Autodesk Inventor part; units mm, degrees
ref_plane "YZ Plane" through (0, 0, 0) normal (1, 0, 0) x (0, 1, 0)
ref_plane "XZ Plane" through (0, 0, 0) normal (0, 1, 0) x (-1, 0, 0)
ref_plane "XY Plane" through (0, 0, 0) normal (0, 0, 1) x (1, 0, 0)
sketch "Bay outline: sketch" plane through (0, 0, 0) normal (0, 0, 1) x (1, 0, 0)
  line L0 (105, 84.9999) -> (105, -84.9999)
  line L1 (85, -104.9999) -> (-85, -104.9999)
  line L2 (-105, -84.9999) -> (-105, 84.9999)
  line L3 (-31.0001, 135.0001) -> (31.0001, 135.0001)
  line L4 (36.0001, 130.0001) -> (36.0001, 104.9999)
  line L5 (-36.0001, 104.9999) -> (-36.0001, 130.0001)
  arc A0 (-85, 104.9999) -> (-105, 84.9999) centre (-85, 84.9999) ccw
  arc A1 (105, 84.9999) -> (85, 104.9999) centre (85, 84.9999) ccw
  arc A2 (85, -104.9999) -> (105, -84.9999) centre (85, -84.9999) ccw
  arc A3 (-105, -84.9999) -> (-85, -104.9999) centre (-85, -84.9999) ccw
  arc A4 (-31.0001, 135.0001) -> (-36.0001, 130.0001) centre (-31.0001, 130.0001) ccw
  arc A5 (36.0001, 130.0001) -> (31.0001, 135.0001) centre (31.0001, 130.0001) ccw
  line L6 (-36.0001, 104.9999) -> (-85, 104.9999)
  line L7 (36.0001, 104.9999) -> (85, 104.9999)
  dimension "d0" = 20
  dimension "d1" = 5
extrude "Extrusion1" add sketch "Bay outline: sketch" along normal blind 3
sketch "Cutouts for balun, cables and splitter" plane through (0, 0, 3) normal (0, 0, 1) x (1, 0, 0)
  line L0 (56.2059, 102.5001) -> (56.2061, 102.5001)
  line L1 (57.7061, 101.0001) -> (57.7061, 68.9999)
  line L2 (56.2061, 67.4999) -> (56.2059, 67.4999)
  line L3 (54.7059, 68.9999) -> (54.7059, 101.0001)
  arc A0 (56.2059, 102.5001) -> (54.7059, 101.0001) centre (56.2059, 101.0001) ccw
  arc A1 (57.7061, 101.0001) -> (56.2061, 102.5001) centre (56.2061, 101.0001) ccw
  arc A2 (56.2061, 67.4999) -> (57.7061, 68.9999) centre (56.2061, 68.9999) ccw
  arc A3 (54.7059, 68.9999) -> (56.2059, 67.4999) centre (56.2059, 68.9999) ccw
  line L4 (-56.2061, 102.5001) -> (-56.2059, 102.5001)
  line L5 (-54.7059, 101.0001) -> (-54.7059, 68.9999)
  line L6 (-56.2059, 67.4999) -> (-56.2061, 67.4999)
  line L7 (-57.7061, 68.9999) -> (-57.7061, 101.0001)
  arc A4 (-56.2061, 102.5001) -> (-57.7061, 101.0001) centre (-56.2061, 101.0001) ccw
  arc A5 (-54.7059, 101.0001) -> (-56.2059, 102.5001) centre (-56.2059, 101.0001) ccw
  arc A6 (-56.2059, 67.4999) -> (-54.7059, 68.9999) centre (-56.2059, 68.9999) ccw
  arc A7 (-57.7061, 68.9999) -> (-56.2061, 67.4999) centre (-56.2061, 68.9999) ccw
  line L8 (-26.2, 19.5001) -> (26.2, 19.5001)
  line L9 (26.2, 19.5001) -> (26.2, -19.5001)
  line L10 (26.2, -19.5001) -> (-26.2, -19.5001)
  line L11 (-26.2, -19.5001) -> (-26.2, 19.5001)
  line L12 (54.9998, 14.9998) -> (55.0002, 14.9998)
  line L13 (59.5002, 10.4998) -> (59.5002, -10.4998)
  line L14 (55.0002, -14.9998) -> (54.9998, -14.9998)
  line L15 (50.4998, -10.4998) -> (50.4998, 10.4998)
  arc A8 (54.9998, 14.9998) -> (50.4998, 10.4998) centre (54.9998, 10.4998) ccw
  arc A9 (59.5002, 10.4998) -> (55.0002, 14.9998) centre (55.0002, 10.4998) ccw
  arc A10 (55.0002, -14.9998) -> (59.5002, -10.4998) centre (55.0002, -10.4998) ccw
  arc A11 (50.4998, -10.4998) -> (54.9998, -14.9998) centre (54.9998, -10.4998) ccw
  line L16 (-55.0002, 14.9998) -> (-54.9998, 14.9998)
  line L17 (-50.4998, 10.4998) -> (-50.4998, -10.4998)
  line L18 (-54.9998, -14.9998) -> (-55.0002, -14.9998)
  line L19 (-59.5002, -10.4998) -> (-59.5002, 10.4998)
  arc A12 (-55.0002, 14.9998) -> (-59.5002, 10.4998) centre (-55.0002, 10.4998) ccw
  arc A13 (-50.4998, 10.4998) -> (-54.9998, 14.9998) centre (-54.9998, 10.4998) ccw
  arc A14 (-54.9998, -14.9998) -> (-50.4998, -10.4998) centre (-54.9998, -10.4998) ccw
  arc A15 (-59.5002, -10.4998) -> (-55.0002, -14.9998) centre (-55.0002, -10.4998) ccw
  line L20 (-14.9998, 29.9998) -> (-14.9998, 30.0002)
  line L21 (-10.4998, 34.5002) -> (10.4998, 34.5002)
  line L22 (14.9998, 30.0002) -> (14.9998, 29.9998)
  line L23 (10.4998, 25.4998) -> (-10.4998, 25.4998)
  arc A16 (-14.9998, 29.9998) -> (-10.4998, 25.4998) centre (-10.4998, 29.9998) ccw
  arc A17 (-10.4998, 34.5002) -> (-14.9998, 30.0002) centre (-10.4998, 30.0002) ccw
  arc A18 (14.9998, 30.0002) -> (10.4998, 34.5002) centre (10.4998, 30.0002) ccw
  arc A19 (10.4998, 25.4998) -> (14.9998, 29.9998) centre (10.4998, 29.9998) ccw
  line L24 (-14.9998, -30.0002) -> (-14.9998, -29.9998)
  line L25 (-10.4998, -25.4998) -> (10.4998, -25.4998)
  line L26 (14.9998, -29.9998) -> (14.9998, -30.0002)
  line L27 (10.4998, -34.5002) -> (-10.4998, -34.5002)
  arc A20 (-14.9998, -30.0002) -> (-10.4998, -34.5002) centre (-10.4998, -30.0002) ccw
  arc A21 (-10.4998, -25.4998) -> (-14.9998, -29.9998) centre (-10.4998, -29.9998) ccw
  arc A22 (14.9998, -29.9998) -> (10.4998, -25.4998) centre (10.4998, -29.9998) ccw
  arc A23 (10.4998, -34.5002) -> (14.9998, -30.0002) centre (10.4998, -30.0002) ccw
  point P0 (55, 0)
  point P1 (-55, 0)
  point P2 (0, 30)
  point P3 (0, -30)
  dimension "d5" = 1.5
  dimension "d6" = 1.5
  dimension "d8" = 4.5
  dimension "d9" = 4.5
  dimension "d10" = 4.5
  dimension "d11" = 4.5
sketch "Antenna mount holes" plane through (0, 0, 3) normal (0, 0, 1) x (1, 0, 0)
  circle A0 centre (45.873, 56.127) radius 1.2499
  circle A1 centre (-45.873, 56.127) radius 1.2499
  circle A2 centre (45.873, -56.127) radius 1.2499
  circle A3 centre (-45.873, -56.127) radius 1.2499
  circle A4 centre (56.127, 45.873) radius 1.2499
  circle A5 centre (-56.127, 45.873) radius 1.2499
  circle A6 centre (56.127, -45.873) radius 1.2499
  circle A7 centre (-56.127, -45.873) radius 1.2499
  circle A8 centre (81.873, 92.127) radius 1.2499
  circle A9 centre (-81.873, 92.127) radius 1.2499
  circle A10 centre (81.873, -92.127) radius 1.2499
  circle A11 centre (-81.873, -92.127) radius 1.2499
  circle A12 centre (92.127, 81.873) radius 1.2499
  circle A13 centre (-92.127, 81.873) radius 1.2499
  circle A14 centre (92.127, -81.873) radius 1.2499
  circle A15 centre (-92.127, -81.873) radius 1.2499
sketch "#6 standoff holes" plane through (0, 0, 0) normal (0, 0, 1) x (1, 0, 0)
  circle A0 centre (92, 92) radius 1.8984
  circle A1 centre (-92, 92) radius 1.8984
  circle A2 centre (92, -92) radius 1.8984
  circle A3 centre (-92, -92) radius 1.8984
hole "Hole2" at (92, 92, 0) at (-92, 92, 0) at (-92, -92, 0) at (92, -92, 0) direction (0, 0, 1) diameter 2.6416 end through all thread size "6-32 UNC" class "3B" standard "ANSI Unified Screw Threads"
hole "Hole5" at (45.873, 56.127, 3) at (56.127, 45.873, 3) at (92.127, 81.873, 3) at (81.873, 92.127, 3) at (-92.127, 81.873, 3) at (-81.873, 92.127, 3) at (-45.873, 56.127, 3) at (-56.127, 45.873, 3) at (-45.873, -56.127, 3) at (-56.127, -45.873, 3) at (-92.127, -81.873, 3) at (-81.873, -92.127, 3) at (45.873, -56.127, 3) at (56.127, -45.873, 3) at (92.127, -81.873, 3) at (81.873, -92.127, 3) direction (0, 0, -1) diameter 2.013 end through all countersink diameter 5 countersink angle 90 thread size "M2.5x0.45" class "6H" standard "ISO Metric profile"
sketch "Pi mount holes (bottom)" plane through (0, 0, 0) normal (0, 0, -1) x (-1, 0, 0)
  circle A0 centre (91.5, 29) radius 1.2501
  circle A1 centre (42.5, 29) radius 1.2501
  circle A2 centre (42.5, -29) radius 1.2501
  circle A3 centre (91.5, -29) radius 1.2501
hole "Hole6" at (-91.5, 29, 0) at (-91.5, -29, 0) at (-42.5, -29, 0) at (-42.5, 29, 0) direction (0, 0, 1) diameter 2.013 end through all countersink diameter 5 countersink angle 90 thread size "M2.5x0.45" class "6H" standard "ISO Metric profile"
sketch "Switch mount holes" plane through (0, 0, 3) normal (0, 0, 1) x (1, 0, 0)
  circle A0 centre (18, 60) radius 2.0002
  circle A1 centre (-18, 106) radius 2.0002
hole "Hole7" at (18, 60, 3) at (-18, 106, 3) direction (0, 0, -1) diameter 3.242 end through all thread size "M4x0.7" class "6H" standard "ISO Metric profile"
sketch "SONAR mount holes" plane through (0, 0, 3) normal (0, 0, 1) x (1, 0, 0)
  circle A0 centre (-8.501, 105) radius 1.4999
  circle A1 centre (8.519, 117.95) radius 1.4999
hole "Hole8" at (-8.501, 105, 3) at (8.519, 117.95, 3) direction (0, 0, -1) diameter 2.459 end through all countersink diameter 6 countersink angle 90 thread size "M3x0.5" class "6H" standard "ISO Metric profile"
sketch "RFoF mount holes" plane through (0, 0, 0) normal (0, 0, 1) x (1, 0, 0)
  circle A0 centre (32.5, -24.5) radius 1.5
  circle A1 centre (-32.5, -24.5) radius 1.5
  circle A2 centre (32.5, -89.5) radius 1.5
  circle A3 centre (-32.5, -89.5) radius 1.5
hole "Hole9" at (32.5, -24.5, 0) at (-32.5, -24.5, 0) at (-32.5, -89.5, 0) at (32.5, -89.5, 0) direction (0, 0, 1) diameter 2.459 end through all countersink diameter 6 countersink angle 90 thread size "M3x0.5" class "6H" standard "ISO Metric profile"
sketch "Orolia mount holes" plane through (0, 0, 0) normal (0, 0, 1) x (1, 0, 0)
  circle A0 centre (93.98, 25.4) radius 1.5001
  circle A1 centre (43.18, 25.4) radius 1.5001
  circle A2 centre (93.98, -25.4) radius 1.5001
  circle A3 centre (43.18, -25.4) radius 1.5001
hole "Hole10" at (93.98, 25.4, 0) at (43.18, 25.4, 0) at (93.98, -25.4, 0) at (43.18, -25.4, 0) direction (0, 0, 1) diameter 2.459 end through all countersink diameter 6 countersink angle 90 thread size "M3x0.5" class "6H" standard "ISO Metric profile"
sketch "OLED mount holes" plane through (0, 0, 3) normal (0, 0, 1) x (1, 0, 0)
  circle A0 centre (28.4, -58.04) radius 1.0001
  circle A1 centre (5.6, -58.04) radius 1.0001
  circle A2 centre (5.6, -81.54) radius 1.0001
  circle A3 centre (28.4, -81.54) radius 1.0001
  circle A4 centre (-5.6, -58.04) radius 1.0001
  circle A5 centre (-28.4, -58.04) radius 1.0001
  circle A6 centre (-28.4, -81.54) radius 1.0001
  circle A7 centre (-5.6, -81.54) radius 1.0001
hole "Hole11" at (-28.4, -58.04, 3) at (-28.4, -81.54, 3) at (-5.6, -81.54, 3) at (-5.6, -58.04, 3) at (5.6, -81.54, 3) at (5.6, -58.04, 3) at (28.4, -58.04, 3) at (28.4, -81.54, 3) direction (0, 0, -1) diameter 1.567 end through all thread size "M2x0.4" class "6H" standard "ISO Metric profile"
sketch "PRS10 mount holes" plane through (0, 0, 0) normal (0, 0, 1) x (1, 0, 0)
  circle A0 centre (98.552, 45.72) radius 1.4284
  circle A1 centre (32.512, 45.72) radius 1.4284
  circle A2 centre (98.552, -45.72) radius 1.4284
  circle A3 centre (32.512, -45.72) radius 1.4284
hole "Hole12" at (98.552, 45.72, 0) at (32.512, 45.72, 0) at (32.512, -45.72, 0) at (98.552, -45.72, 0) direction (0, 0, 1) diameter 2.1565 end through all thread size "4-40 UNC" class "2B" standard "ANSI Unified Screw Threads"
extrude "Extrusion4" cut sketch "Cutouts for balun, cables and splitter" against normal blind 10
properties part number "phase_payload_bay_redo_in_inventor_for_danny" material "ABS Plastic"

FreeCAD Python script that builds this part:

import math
import FreeCAD as App
import Part
import Sketcher

V = App.Vector
Q = App.Units.Quantity


def add_polygon(sketch, points):
    """Adds a closed chain of lines whose ends are joined by coincident constraints."""
    first, n = sketch.GeometryCount, len(points)
    for a, b in zip(points, points[1:] + points[:1]):
        sketch.addGeometry(Part.LineSegment(App.Vector(*a, 0), App.Vector(*b, 0)), False)
    for i in range(n):
        sketch.addConstraint(Sketcher.Constraint("Coincident", first + i, 2, first + (i + 1) % n, 1))

doc = App.newDocument("Part")
body = doc.addObject("PartDesign::Body", "Body")

# Sketch on XY plane
sketch1 = body.newObject("Sketcher::SketchObject", "Sketch")
sketch1.AttachmentSupport = (doc.getObject("XY_Plane"), [""])
sketch1.MapMode = "FlatFace"
sketch1.addGeometry(Part.LineSegment(V(105, -85, 0), V(105, 85, 0)), False)
sketch1.addGeometry(Part.ArcOfCircle(Part.Circle(V(85, 85, 0), V(0, 0, 1), 20), math.radians(0), math.radians(90)), False)
sketch1.addGeometry(Part.LineSegment(V(85, 105, 0), V(36, 105, 0)), False)
sketch1.addGeometry(Part.LineSegment(V(36, 105, 0), V(36, 130, 0)), False)
sketch1.addGeometry(Part.ArcOfCircle(Part.Circle(V(31, 130, 0), V(0, 0, 1), 5), math.radians(0), math.radians(90)), False)
sketch1.addGeometry(Part.LineSegment(V(31, 135, 0), V(-31, 135, 0)), False)
sketch1.addGeometry(Part.ArcOfCircle(Part.Circle(V(-31, 130, 0), V(0, 0, 1), 5), math.radians(90), math.radians(180)), False)
sketch1.addGeometry(Part.LineSegment(V(-36, 130, 0), V(-36, 105, 0)), False)
sketch1.addGeometry(Part.LineSegment(V(-36, 105, 0), V(-85, 105, 0)), False)
sketch1.addGeometry(Part.ArcOfCircle(Part.Circle(V(-85, 85, 0), V(0, 0, 1), 20), math.radians(90), math.radians(180)), False)
sketch1.addGeometry(Part.LineSegment(V(-105, 85, 0), V(-105, -85, 0)), False)
sketch1.addGeometry(Part.ArcOfCircle(Part.Circle(V(-85, -85, 0), V(0, 0, 1), 20), math.radians(180), math.radians(270)), False)
sketch1.addGeometry(Part.LineSegment(V(-85, -105, 0), V(85, -105, 0)), False)
sketch1.addGeometry(Part.ArcOfCircle(Part.Circle(V(85, -85, 0), V(0, 0, 1), 20), math.radians(-90), math.radians(0)), False)
sketch1.addConstraint(Sketcher.Constraint("Tangent", 0, 2, 1, 1))
sketch1.addConstraint(Sketcher.Constraint("Tangent", 1, 2, 2, 1))
sketch1.addConstraint(Sketcher.Constraint("Coincident", 2, 2, 3, 1))
sketch1.addConstraint(Sketcher.Constraint("Tangent", 3, 2, 4, 1))
sketch1.addConstraint(Sketcher.Constraint("Tangent", 4, 2, 5, 1))
sketch1.addConstraint(Sketcher.Constraint("Tangent", 5, 2, 6, 1))
sketch1.addConstraint(Sketcher.Constraint("Tangent", 6, 2, 7, 1))
sketch1.addConstraint(Sketcher.Constraint("Coincident", 7, 2, 8, 1))
sketch1.addConstraint(Sketcher.Constraint("Tangent", 8, 2, 9, 1))
sketch1.addConstraint(Sketcher.Constraint("Tangent", 9, 2, 10, 1))
sketch1.addConstraint(Sketcher.Constraint("Tangent", 10, 2, 11, 1))
sketch1.addConstraint(Sketcher.Constraint("Tangent", 11, 2, 12, 1))
sketch1.addConstraint(Sketcher.Constraint("Tangent", 12, 2, 13, 1))
sketch1.addConstraint(Sketcher.Constraint("Tangent", 13, 2, 0, 1))
sketch1.addConstraint(Sketcher.Constraint("Vertical", 0))
sketch1.addConstraint(Sketcher.Constraint("Horizontal", 2))
sketch1.addConstraint(Sketcher.Constraint("Vertical", 3))
sketch1.addConstraint(Sketcher.Constraint("Horizontal", 5))
sketch1.addConstraint(Sketcher.Constraint("Vertical", 7))
sketch1.addConstraint(Sketcher.Constraint("Horizontal", 8))
sketch1.addConstraint(Sketcher.Constraint("Vertical", 10))
sketch1.addConstraint(Sketcher.Constraint("Horizontal", 12))
sketch1.addConstraint(Sketcher.Constraint("Equal", 4, 6))
sketch1.addConstraint(Sketcher.Constraint("Equal", 1, 9))
sketch1.addConstraint(Sketcher.Constraint("Equal", 9, 11))
sketch1.addConstraint(Sketcher.Constraint("Equal", 11, 13))
sketch1.addConstraint(Sketcher.Constraint("Symmetric", 1, 3, 11, 3, -1, 1))
sketch1.addConstraint(Sketcher.Constraint("Symmetric", 2, 2, 7, 2, -2))
sketch1.addConstraint(Sketcher.Constraint("Radius", 1, Q("20 mm")))
sketch1.addConstraint(Sketcher.Constraint("Radius", 4, Q("5 mm")))
sketch1.addConstraint(Sketcher.Constraint("DistanceX", 2, 2, 2, 1, Q("49 mm")))
sketch1.addConstraint(Sketcher.Constraint("DistanceX", 12, 1, 12, 2, Q("170 mm")))
sketch1.addConstraint(Sketcher.Constraint("DistanceY", -1, 1, 1, 3, Q("85 mm")))
sketch1.addConstraint(Sketcher.Constraint("DistanceY", -1, 1, 4, 3, Q("130 mm")))
pad1 = body.newObject("PartDesign::Pad", "Pad")
pad1.Profile = sketch1
pad1.Length = 3

# Sketch on XY plane
sketch2 = body.newObject("Sketcher::SketchObject", "Sketch001")
sketch2.AttachmentSupport = (doc.getObject("XY_Plane"), [""])
sketch2.MapMode = "FlatFace"
sketch2.addGeometry(Part.Circle(V(92, 92, 0), V(0, 0, 1), 1.3), False)
sketch2.addGeometry(Part.Circle(V(-92, 92, 0), V(0, 0, 1), 1.3), False)
sketch2.addGeometry(Part.Circle(V(-92, -92, 0), V(0, 0, 1), 1.3), False)
sketch2.addGeometry(Part.Circle(V(92, -92, 0), V(0, 0, 1), 1.3), False)
sketch2.addConstraint(Sketcher.Constraint("Equal", 0, 1))
sketch2.addConstraint(Sketcher.Constraint("Equal", 1, 2))
sketch2.addConstraint(Sketcher.Constraint("Equal", 2, 3))
sketch2.addConstraint(Sketcher.Constraint("Symmetric", 0, 3, 2, 3, -1, 1))
sketch2.addConstraint(Sketcher.Constraint("Symmetric", 1, 3, 3, 3, -1, 1))
sketch2.addConstraint(Sketcher.Constraint("Symmetric", 0, 3, 1, 3, -2))
sketch2.addConstraint(Sketcher.Constraint("DistanceX", -1, 1, 0, 3, Q("92 mm")))
sketch2.addConstraint(Sketcher.Constraint("DistanceY", -1, 1, 0, 3, Q("92 mm")))
sketch2.addConstraint(Sketcher.Constraint("Diameter", 0, Q("2.6416 mm")))
doc.recompute()
hole = body.newObject("PartDesign::Hole", "Hole")
hole.Profile = sketch2
hole.ThreadType = "None"
hole.Diameter = 2.6416
hole.DepthType = "ThroughAll"
hole.Reversed = True

# Sketch on XY plane
sketch3 = body.newObject("Sketcher::SketchObject", "Sketch002")
sketch3.AttachmentSupport = (doc.getObject("XY_Plane"), [""])
sketch3.MapMode = "FlatFace"
sketch3.AttachmentOffset = App.Placement(V(0, 0, 3), App.Rotation())
sketch3.addGeometry(Part.Circle(V(45.9, 56.1, 0), V(0, 0, 1), 1), False)
sketch3.addGeometry(Part.Circle(V(56.1, 45.9, 0), V(0, 0, 1), 1), False)
sketch3.addGeometry(Part.Circle(V(92.1, 81.9, 0), V(0, 0, 1), 1), False)
sketch3.addGeometry(Part.Circle(V(81.9, 92.1, 0), V(0, 0, 1), 1), False)
sketch3.addGeometry(Part.Circle(V(-92.1, 81.9, 0), V(0, 0, 1), 1), False)
sketch3.addGeometry(Part.Circle(V(-81.9, 92.1, 0), V(0, 0, 1), 1), False)
sketch3.addGeometry(Part.Circle(V(-45.9, 56.1, 0), V(0, 0, 1), 1), False)
sketch3.addGeometry(Part.Circle(V(-56.1, 45.9, 0), V(0, 0, 1), 1), False)
sketch3.addGeometry(Part.Circle(V(-45.9, -56.1, 0), V(0, 0, 1), 1), False)
sketch3.addGeometry(Part.Circle(V(-56.1, -45.9, 0), V(0, 0, 1), 1), False)
sketch3.addGeometry(Part.Circle(V(-92.1, -81.9, 0), V(0, 0, 1), 1), False)
sketch3.addGeometry(Part.Circle(V(-81.9, -92.1, 0), V(0, 0, 1), 1), False)
sketch3.addGeometry(Part.Circle(V(45.9, -56.1, 0), V(0, 0, 1), 1), False)
sketch3.addGeometry(Part.Circle(V(56.1, -45.9, 0), V(0, 0, 1), 1), False)
sketch3.addGeometry(Part.Circle(V(92.1, -81.9, 0), V(0, 0, 1), 1), False)
sketch3.addGeometry(Part.Circle(V(81.9, -92.1, 0), V(0, 0, 1), 1), False)
sketch3.addConstraint(Sketcher.Constraint("Equal", 0, 1))
sketch3.addConstraint(Sketcher.Constraint("Equal", 1, 2))
sketch3.addConstraint(Sketcher.Constraint("Equal", 2, 3))
sketch3.addConstraint(Sketcher.Constraint("Equal", 3, 4))
sketch3.addConstraint(Sketcher.Constraint("Equal", 4, 5))
sketch3.addConstraint(Sketcher.Constraint("Equal", 5, 6))
sketch3.addConstraint(Sketcher.Constraint("Equal", 6, 7))
sketch3.addConstraint(Sketcher.Constraint("Equal", 7, 8))
sketch3.addConstraint(Sketcher.Constraint("Equal", 8, 9))
sketch3.addConstraint(Sketcher.Constraint("Equal", 9, 10))
sketch3.addConstraint(Sketcher.Constraint("Equal", 10, 11))
sketch3.addConstraint(Sketcher.Constraint("Equal", 11, 12))
sketch3.addConstraint(Sketcher.Constraint("Equal", 12, 13))
sketch3.addConstraint(Sketcher.Constraint("Equal", 13, 14))
sketch3.addConstraint(Sketcher.Constraint("Equal", 14, 15))
sketch3.addConstraint(Sketcher.Constraint("Symmetric", 0, 3, 8, 3, -1, 1))
sketch3.addConstraint(Sketcher.Constraint("Symmetric", 1, 3, 9, 3, -1, 1))
sketch3.addConstraint(Sketcher.Constraint("Symmetric", 2, 3, 10, 3, -1, 1))
sketch3.addConstraint(Sketcher.Constraint("Symmetric", 3, 3, 11, 3, -1, 1))
sketch3.addConstraint(Sketcher.Constraint("Symmetric", 6, 3, 12, 3, -1, 1))
sketch3.addConstraint(Sketcher.Constraint("Symmetric", 7, 3, 13, 3, -1, 1))
sketch3.addConstraint(Sketcher.Constraint("Symmetric", 4, 3, 14, 3, -1, 1))
sketch3.addConstraint(Sketcher.Constraint("Symmetric", 5, 3, 15, 3, -1, 1))
sketch3.addConstraint(Sketcher.Constraint("Symmetric", 2, 3, 4, 3, -2))
sketch3.addConstraint(Sketcher.Constraint("Symmetric", 3, 3, 5, 3, -2))
sketch3.addConstraint(Sketcher.Constraint("Symmetric", 0, 3, 6, 3, -2))
sketch3.addConstraint(Sketcher.Constraint("Symmetric", 1, 3, 7, 3, -2))
sketch3.addConstraint(Sketcher.Constraint("Diameter", 0, Q("2.013 mm")))
sketch3.addConstraint(Sketcher.Constraint("DistanceX", 1, 3, 2, 3, Q("36 mm")))
sketch3.addConstraint(Sketcher.Constraint("DistanceY", 1, 3, 2, 3, Q("36 mm")))
sketch3.addConstraint(Sketcher.Constraint("DistanceX", 0, 3, 3, 3, Q("36 mm")))
sketch3.addConstraint(Sketcher.Constraint("DistanceY", 0, 3, 3, 3, Q("36 mm")))
sketch3.addConstraint(Sketcher.Constraint("DistanceX", 4, 3, 0, 3, Q("138 mm")))
sketch3.addConstraint(Sketcher.Constraint("DistanceY", 8, 3, 7, 3, Q("102 mm")))
sketch3.addConstraint(Sketcher.Constraint("DistanceX", -1, 1, 0, 3, Q("45.873 mm")))
sketch3.addConstraint(Sketcher.Constraint("DistanceY", -1, 1, 0, 3, Q("56.127 mm")))
doc.recompute()
hole2 = body.newObject("PartDesign::Hole", "Hole001")
hole2.Profile = sketch3
hole2.ThreadType = "None"
hole2.Diameter = 2.013
hole2.DepthType = "ThroughAll"
hole2.HoleCutType = "Countersink"
hole2.HoleCutDiameter = 5
hole2.HoleCutCountersinkAngle = 90

# Sketch on XY plane
sketch4 = body.newObject("Sketcher::SketchObject", "Sketch003")
sketch4.AttachmentSupport = (doc.getObject("XY_Plane"), [""])
sketch4.MapMode = "FlatFace"
sketch4.addGeometry(Part.Circle(V(-91.5, 29, 0), V(0, 0, 1), 1), False)
sketch4.addGeometry(Part.Circle(V(-91.5, -29, 0), V(0, 0, 1), 1), False)
sketch4.addGeometry(Part.Circle(V(-42.5, -29, 0), V(0, 0, 1), 1), False)
sketch4.addGeometry(Part.Circle(V(-42.5, 29, 0), V(0, 0, 1), 1), False)
sketch4.addConstraint(Sketcher.Constraint("Equal", 0, 1))
sketch4.addConstraint(Sketcher.Constraint("Equal", 1, 2))
sketch4.addConstraint(Sketcher.Constraint("Equal", 2, 3))
sketch4.addConstraint(Sketcher.Constraint("Symmetric", 0, 3, 1, 3, -1))
sketch4.addConstraint(Sketcher.Constraint("Symmetric", 2, 3, 3, 3, -1))
sketch4.addConstraint(Sketcher.Constraint("Horizontal", 1, 3, 2, 3))
sketch4.addConstraint(Sketcher.Constraint("Diameter", 0, Q("2.013 mm")))
sketch4.addConstraint(Sketcher.Constraint("DistanceY", -1, 1, 0, 3, Q("29 mm")))
sketch4.addConstraint(Sketcher.Constraint("DistanceX", 1, 3, 2, 3, Q("49 mm")))
sketch4.addConstraint(Sketcher.Constraint("DistanceX", 0, 3, -1, 1, Q("91.5 mm")))
doc.recompute()
hole3 = body.newObject("PartDesign::Hole", "Hole002")
hole3.Profile = sketch4
hole3.ThreadType = "None"
hole3.Diameter = 2.013
hole3.DepthType = "ThroughAll"
hole3.HoleCutType = "Countersink"
hole3.HoleCutDiameter = 5
hole3.HoleCutCountersinkAngle = 90
hole3.Reversed = True

# Sketch on XY plane
sketch5 = body.newObject("Sketcher::SketchObject", "Sketch004")
sketch5.AttachmentSupport = (doc.getObject("XY_Plane"), [""])
sketch5.MapMode = "FlatFace"
sketch5.AttachmentOffset = App.Placement(V(0, 0, 3), App.Rotation())
sketch5.addGeometry(Part.Circle(V(18, 60, 0), V(0, 0, 1), 1.6), False)
sketch5.addGeometry(Part.Circle(V(-18, 106, 0), V(0, 0, 1), 1.6), False)
sketch5.addConstraint(Sketcher.Constraint("Equal", 0, 1))
sketch5.addConstraint(Sketcher.Constraint("Diameter", 0, Q("3.242 mm")))
sketch5.addConstraint(Sketcher.Constraint("DistanceX", -1, 1, 0, 3, Q("18 mm")))
sketch5.addConstraint(Sketcher.Constraint("DistanceY", -1, 1, 0, 3, Q("60 mm")))
sketch5.addConstraint(Sketcher.Constraint("DistanceX", 1, 3, -1, 1, Q("18 mm")))
sketch5.addConstraint(Sketcher.Constraint("DistanceY", -1, 1, 1, 3, Q("106 mm")))
doc.recompute()
hole4 = body.newObject("PartDesign::Hole", "Hole003")
hole4.Profile = sketch5
hole4.ThreadType = "None"
hole4.Diameter = 3.242
hole4.DepthType = "ThroughAll"

# Sketch on XY plane
sketch6 = body.newObject("Sketcher::SketchObject", "Sketch005")
sketch6.AttachmentSupport = (doc.getObject("XY_Plane"), [""])
sketch6.MapMode = "FlatFace"
sketch6.AttachmentOffset = App.Placement(V(0, 0, 3), App.Rotation())
sketch6.addGeometry(Part.Circle(V(-8.5, 105, 0), V(0, 0, 1), 1.2), False)
sketch6.addGeometry(Part.Circle(V(8.5, 118, 0), V(0, 0, 1), 1.2), False)
sketch6.addConstraint(Sketcher.Constraint("Equal", 0, 1))
sketch6.addConstraint(Sketcher.Constraint("Diameter", 0, Q("2.459 mm")))
sketch6.addConstraint(Sketcher.Constraint("DistanceY", -1, 1, 0, 3, Q("105 mm")))
sketch6.addConstraint(Sketcher.Constraint("DistanceY", -1, 1, 1, 3, Q("117.95 mm")))
sketch6.addConstraint(Sketcher.Constraint("DistanceX", 0, 3, 1, 3, Q("17.02 mm")))
sketch6.addConstraint(Sketcher.Constraint("DistanceX", 0, 3, -1, 1, Q("8.501 mm")))
doc.recompute()
hole5 = body.newObject("PartDesign::Hole", "Hole004")
hole5.Profile = sketch6
hole5.ThreadType = "None"
hole5.Diameter = 2.459
hole5.DepthType = "ThroughAll"
hole5.HoleCutType = "Countersink"
hole5.HoleCutDiameter = 6
hole5.HoleCutCountersinkAngle = 90

# Sketch on XY plane
sketch7 = body.newObject("Sketcher::SketchObject", "Sketch006")
sketch7.AttachmentSupport = (doc.getObject("XY_Plane"), [""])
sketch7.MapMode = "FlatFace"
sketch7.addGeometry(Part.Circle(V(32.5, -24.5, 0), V(0, 0, 1), 1.2), False)
sketch7.addGeometry(Part.Circle(V(-32.5, -24.5, 0), V(0, 0, 1), 1.2), False)
sketch7.addGeometry(Part.Circle(V(-32.5, -89.5, 0), V(0, 0, 1), 1.2), False)
sketch7.addGeometry(Part.Circle(V(32.5, -89.5, 0), V(0, 0, 1), 1.2), False)
sketch7.addConstraint(Sketcher.Constraint("Equal", 0, 1))
sketch7.addConstraint(Sketcher.Constraint("Equal", 1, 2))
sketch7.addConstraint(Sketcher.Constraint("Equal", 2, 3))
sketch7.addConstraint(Sketcher.Constraint("Symmetric", 0, 3, 1, 3, -2))
sketch7.addConstraint(Sketcher.Constraint("Symmetric", 2, 3, 3, 3, -2))
sketch7.addConstraint(Sketcher.Constraint("Vertical", 1, 3, 2, 3))
sketch7.addConstraint(Sketcher.Constraint("Diameter", 0, Q("2.459 mm")))
sketch7.addConstraint(Sketcher.Constraint("DistanceX", 1, 3, 0, 3, Q("65 mm")))
sketch7.addConstraint(Sketcher.Constraint("DistanceY", 2, 3, 1, 3, Q("65 mm")))
sketch7.addConstraint(Sketcher.Constraint("DistanceY", 0, 3, -1, 1, Q("24.5 mm")))
doc.recompute()
hole6 = body.newObject("PartDesign::Hole", "Hole005")
hole6.Profile = sketch7
hole6.ThreadType = "None"
hole6.Diameter = 2.459
hole6.DepthType = "ThroughAll"
hole6.HoleCutType = "Countersink"
hole6.HoleCutDiameter = 6
hole6.HoleCutCountersinkAngle = 90
hole6.Reversed = True

# Sketch on XY plane
sketch8 = body.newObject("Sketcher::SketchObject", "Sketch007")
sketch8.AttachmentSupport = (doc.getObject("XY_Plane"), [""])
sketch8.MapMode = "FlatFace"
sketch8.addGeometry(Part.Circle(V(94, 25.4, 0), V(0, 0, 1), 1.2), False)
sketch8.addGeometry(Part.Circle(V(43.2, 25.4, 0), V(0, 0, 1), 1.2), False)
sketch8.addGeometry(Part.Circle(V(94, -25.4, 0), V(0, 0, 1), 1.2), False)
sketch8.addGeometry(Part.Circle(V(43.2, -25.4, 0), V(0, 0, 1), 1.2), False)
sketch8.addConstraint(Sketcher.Constraint("Equal", 0, 1))
sketch8.addConstraint(Sketcher.Constraint("Equal", 1, 2))
sketch8.addConstraint(Sketcher.Constraint("Equal", 2, 3))
sketch8.addConstraint(Sketcher.Constraint("Symmetric", 0, 3, 2, 3, -1))
sketch8.addConstraint(Sketcher.Constraint("Symmetric", 1, 3, 3, 3, -1))
sketch8.addConstraint(Sketcher.Constraint("Horizontal", 0, 3, 1, 3))
sketch8.addConstraint(Sketcher.Constraint("Diameter", 0, Q("2.459 mm")))
sketch8.addConstraint(Sketcher.Constraint("DistanceY", -1, 1, 0, 3, Q("25.4 mm")))
sketch8.addConstraint(Sketcher.Constraint("DistanceX", 1, 3, 0, 3, Q("50.8 mm")))
sketch8.addConstraint(Sketcher.Constraint("DistanceX", -1, 1, 0, 3, Q("93.98 mm")))
doc.recompute()
hole7 = body.newObject("PartDesign::Hole", "Hole006")
hole7.Profile = sketch8
hole7.ThreadType = "None"
hole7.Diameter = 2.459
hole7.DepthType = "ThroughAll"
hole7.HoleCutType = "Countersink"
hole7.HoleCutDiameter = 6
hole7.HoleCutCountersinkAngle = 90
hole7.Reversed = True

# Sketch on XY plane
sketch9 = body.newObject("Sketcher::SketchObject", "Sketch008")
sketch9.AttachmentSupport = (doc.getObject("XY_Plane"), [""])
sketch9.MapMode = "FlatFace"
sketch9.AttachmentOffset = App.Placement(V(0, 0, 3), App.Rotation())
sketch9.addGeometry(Part.Circle(V(-28.4, -58, 0), V(0, 0, 1), 0.8), False)
sketch9.addGeometry(Part.Circle(V(-28.4, -81.5, 0), V(0, 0, 1), 0.8), False)
sketch9.addGeometry(Part.Circle(V(-5.6, -81.5, 0), V(0, 0, 1), 0.8), False)
sketch9.addGeometry(Part.Circle(V(-5.6, -58, 0), V(0, 0, 1), 0.8), False)
sketch9.addGeometry(Part.Circle(V(5.6, -81.5, 0), V(0, 0, 1), 0.8), False)
sketch9.addGeometry(Part.Circle(V(5.6, -58, 0), V(0, 0, 1), 0.8), False)
sketch9.addGeometry(Part.Circle(V(28.4, -58, 0), V(0, 0, 1), 0.8), False)
sketch9.addGeometry(Part.Circle(V(28.4, -81.5, 0), V(0, 0, 1), 0.8), False)
sketch9.addConstraint(Sketcher.Constraint("Equal", 0, 1))
sketch9.addConstraint(Sketcher.Constraint("Equal", 1, 2))
sketch9.addConstraint(Sketcher.Constraint("Equal", 2, 3))
sketch9.addConstraint(Sketcher.Constraint("Equal", 3, 4))
sketch9.addConstraint(Sketcher.Constraint("Equal", 4, 5))
sketch9.addConstraint(Sketcher.Constraint("Equal", 5, 6))
sketch9.addConstraint(Sketcher.Constraint("Equal", 6, 7))
sketch9.addConstraint(Sketcher.Constraint("Symmetric", 2, 3, 4, 3, -2))
sketch9.addConstraint(Sketcher.Constraint("Symmetric", 3, 3, 5, 3, -2))
sketch9.addConstraint(Sketcher.Constraint("Symmetric", 0, 3, 6, 3, -2))
sketch9.addConstraint(Sketcher.Constraint("Symmetric", 1, 3, 7, 3, -2))
sketch9.addConstraint(Sketcher.Constraint("Horizontal", 1, 3, 2, 3))
sketch9.addConstraint(Sketcher.Constraint("Horizontal", 0, 3, 3, 3))
sketch9.addConstraint(Sketcher.Constraint("Vertical", 0, 3, 1, 3))
sketch9.addConstraint(Sketcher.Constraint("Vertical", 2, 3, 3, 3))
sketch9.addConstraint(Sketcher.Constraint("Diameter", 0, Q("1.567 mm")))
sketch9.addConstraint(Sketcher.Constraint("DistanceX", 1, 3, 4, 3, Q("34 mm")))
sketch9.addConstraint(Sketcher.Constraint("DistanceX", 0, 3, -1, 1, Q("28.4 mm")))
sketch9.addConstraint(Sketcher.Constraint("DistanceY", 1, 3, 0, 3, Q("23.5 mm")))
sketch9.addConstraint(Sketcher.Constraint("DistanceY", 0, 3, -1, 1, Q("58.04 mm")))
doc.recompute()
hole8 = body.newObject("PartDesign::Hole", "Hole007")
hole8.Profile = sketch9
hole8.ThreadType = "None"
hole8.Diameter = 1.567
hole8.DepthType = "ThroughAll"

# Sketch on XY plane
sketch10 = body.newObject("Sketcher::SketchObject", "Sketch009")
sketch10.AttachmentSupport = (doc.getObject("XY_Plane"), [""])
sketch10.MapMode = "FlatFace"
sketch10.addGeometry(Part.Circle(V(98.6, 45.7, 0), V(0, 0, 1), 1.1), False)
sketch10.addGeometry(Part.Circle(V(32.5, 45.7, 0), V(0, 0, 1), 1.1), False)
sketch10.addGeometry(Part.Circle(V(32.5, -45.7, 0), V(0, 0, 1), 1.1), False)
sketch10.addGeometry(Part.Circle(V(98.6, -45.7, 0), V(0, 0, 1), 1.1), False)
sketch10.addConstraint(Sketcher.Constraint("Equal", 0, 1))
sketch10.addConstraint(Sketcher.Constraint("Equal", 1, 2))
sketch10.addConstraint(Sketcher.Constraint("Equal", 2, 3))
sketch10.addConstraint(Sketcher.Constraint("Symmetric", 1, 3, 2, 3, -1))
sketch10.addConstraint(Sketcher.Constraint("Symmetric", 0, 3, 3, 3, -1))
sketch10.addConstraint(Sketcher.Constraint("Horizontal", 0, 3, 1, 3))
sketch10.addConstraint(Sketcher.Constraint("Diameter", 0, Q("2.1565 mm")))
sketch10.addConstraint(Sketcher.Constraint("DistanceY", -1, 1, 0, 3, Q("45.72 mm")))
sketch10.addConstraint(Sketcher.Constraint("DistanceX", 1, 3, 0, 3, Q("66.04 mm")))
sketch10.addConstraint(Sketcher.Constraint("DistanceX", -1, 1, 0, 3, Q("98.552 mm")))
doc.recompute()
hole9 = body.newObject("PartDesign::Hole", "Hole008")
hole9.Profile = sketch10
hole9.ThreadType = "None"
hole9.Diameter = 2.1565
hole9.DepthType = "ThroughAll"
hole9.Reversed = True

# Sketch on XY plane
sketch11 = body.newObject("Sketcher::SketchObject", "Sketch010")
sketch11.AttachmentSupport = (doc.getObject("XY_Plane"), [""])
sketch11.MapMode = "FlatFace"
sketch11.AttachmentOffset = App.Placement(V(0, 0, 3), App.Rotation())
sketch11.addGeometry(Part.LineSegment(V(57.7, 69, 0), V(57.7, 101, 0)), False)  # 0
sketch11.addGeometry(Part.ArcOfCircle(Part.Circle(V(56.2, 101, 0), V(0, 0, 1), 1.5), math.radians(0), math.radians(90)), False)  # 1
sketch11.addGeometry(Part.ArcOfCircle(Part.Circle(V(56.2, 101, 0), V(0, 0, 1), 1.5), math.radians(90), math.radians(180)), False)  # 2
sketch11.addGeometry(Part.LineSegment(V(54.7, 101, 0), V(54.7, 69, 0)), False)  # 3
sketch11.addGeometry(Part.ArcOfCircle(Part.Circle(V(56.2, 69, 0), V(0, 0, 1), 1.5), math.radians(180), math.radians(270)), False)  # 4
sketch11.addGeometry(Part.ArcOfCircle(Part.Circle(V(56.2, 69, 0), V(0, 0, 1), 1.5), math.radians(-90), math.radians(0)), False)  # 5
sketch11.addGeometry(Part.LineSegment(V(-54.7, 69, 0), V(-54.7, 101, 0)), False)  # 6
sketch11.addGeometry(Part.ArcOfCircle(Part.Circle(V(-56.2, 101, 0), V(0, 0, 1), 1.5), math.radians(0), math.radians(90)), False)  # 7
sketch11.addGeometry(Part.ArcOfCircle(Part.Circle(V(-56.2, 101, 0), V(0, 0, 1), 1.5), math.radians(90), math.radians(180)), False)  # 8
sketch11.addGeometry(Part.LineSegment(V(-57.7, 101, 0), V(-57.7, 69, 0)), False)  # 9
sketch11.addGeometry(Part.ArcOfCircle(Part.Circle(V(-56.2, 69, 0), V(0, 0, 1), 1.5), math.radians(180), math.radians(270)), False)  # 10
sketch11.addGeometry(Part.ArcOfCircle(Part.Circle(V(-56.2, 69, 0), V(0, 0, 1), 1.5), math.radians(-90), math.radians(0)), False)  # 11
add_polygon(sketch11, [(26.2, 19.5), (-26.2, 19.5), (-26.2, -19.5), (26.2, -19.5)])  # lines 12-15
sketch11.addGeometry(Part.LineSegment(V(59.5, -10.5, 0), V(59.5, 10.5, 0)), False)  # 16
sketch11.addGeometry(Part.ArcOfCircle(Part.Circle(V(55, 10.5, 0), V(0, 0, 1), 4.5), math.radians(0), math.radians(90)), False)  # 17
sketch11.addGeometry(Part.ArcOfCircle(Part.Circle(V(55, 10.5, 0), V(0, 0, 1), 4.5), math.radians(90), math.radians(180)), False)  # 18
sketch11.addGeometry(Part.LineSegment(V(50.5, 10.5, 0), V(50.5, -10.5, 0)), False)  # 19
sketch11.addGeometry(Part.ArcOfCircle(Part.Circle(V(55, -10.5, 0), V(0, 0, 1), 4.5), math.radians(180), math.radians(270)), False)  # 20
sketch11.addGeometry(Part.ArcOfCircle(Part.Circle(V(55, -10.5, 0), V(0, 0, 1), 4.5), math.radians(-90), math.radians(0)), False)  # 21
sketch11.addGeometry(Part.LineSegment(V(-50.5, -10.5, 0), V(-50.5, 10.5, 0)), False)  # 22
sketch11.addGeometry(Part.ArcOfCircle(Part.Circle(V(-55, 10.5, 0), V(0, 0, 1), 4.5), math.radians(0), math.radians(90)), False)  # 23
sketch11.addGeometry(Part.ArcOfCircle(Part.Circle(V(-55, 10.5, 0), V(0, 0, 1), 4.5), math.radians(90), math.radians(180)), False)  # 24
sketch11.addGeometry(Part.LineSegment(V(-59.5, 10.5, 0), V(-59.5, -10.5, 0)), False)  # 25
sketch11.addGeometry(Part.ArcOfCircle(Part.Circle(V(-55, -10.5, 0), V(0, 0, 1), 4.5), math.radians(180), math.radians(270)), False)  # 26
sketch11.addGeometry(Part.ArcOfCircle(Part.Circle(V(-55, -10.5, 0), V(0, 0, 1), 4.5), math.radians(-90), math.radians(0)), False)  # 27
sketch11.addGeometry(Part.LineSegment(V(10.5, 34.5, 0), V(-10.5, 34.5, 0)), False)  # 28
sketch11.addGeometry(Part.ArcOfCircle(Part.Circle(V(-10.5, 30, 0), V(0, 0, 1), 4.5), math.radians(90), math.radians(180)), False)  # 29
sketch11.addGeometry(Part.ArcOfCircle(Part.Circle(V(-10.5, 30, 0), V(0, 0, 1), 4.5), math.radians(180), math.radians(270)), False)  # 30
sketch11.addGeometry(Part.LineSegment(V(-10.5, 25.5, 0), V(10.5, 25.5, 0)), False)  # 31
sketch11.addGeometry(Part.ArcOfCircle(Part.Circle(V(10.5, 30, 0), V(0, 0, 1), 4.5), math.radians(-90), math.radians(0)), False)  # 32
sketch11.addGeometry(Part.ArcOfCircle(Part.Circle(V(10.5, 30, 0), V(0, 0, 1), 4.5), math.radians(0), math.radians(90)), False)  # 33
sketch11.addGeometry(Part.LineSegment(V(10.5, -25.5, 0), V(-10.5, -25.5, 0)), False)  # 34
sketch11.addGeometry(Part.ArcOfCircle(Part.Circle(V(-10.5, -30, 0), V(0, 0, 1), 4.5), math.radians(90), math.radians(180)), False)  # 35
sketch11.addGeometry(Part.ArcOfCircle(Part.Circle(V(-10.5, -30, 0), V(0, 0, 1), 4.5), math.radians(180), math.radians(270)), False)  # 36
sketch11.addGeometry(Part.LineSegment(V(-10.5, -34.5, 0), V(10.5, -34.5, 0)), False)  # 37
sketch11.addGeometry(Part.ArcOfCircle(Part.Circle(V(10.5, -30, 0), V(0, 0, 1), 4.5), math.radians(-90), math.radians(0)), False)  # 38
sketch11.addGeometry(Part.ArcOfCircle(Part.Circle(V(10.5, -30, 0), V(0, 0, 1), 4.5), math.radians(0), math.radians(90)), False)  # 39
sketch11.addConstraint(Sketcher.Constraint("Tangent", 0, 2, 1, 1))
sketch11.addConstraint(Sketcher.Constraint("Tangent", 1, 2, 2, 1))
sketch11.addConstraint(Sketcher.Constraint("Tangent", 2, 2, 3, 1))
sketch11.addConstraint(Sketcher.Constraint("Tangent", 3, 2, 4, 1))
sketch11.addConstraint(Sketcher.Constraint("Tangent", 4, 2, 5, 1))
sketch11.addConstraint(Sketcher.Constraint("Tangent", 5, 2, 0, 1))
sketch11.addConstraint(Sketcher.Constraint("Tangent", 6, 2, 7, 1))
sketch11.addConstraint(Sketcher.Constraint("Tangent", 7, 2, 8, 1))
sketch11.addConstraint(Sketcher.Constraint("Tangent", 8, 2, 9, 1))
sketch11.addConstraint(Sketcher.Constraint("Tangent", 9, 2, 10, 1))
sketch11.addConstraint(Sketcher.Constraint("Tangent", 10, 2, 11, 1))
sketch11.addConstraint(Sketcher.Constraint("Tangent", 11, 2, 6, 1))
sketch11.addConstraint(Sketcher.Constraint("Tangent", 16, 2, 17, 1))
sketch11.addConstraint(Sketcher.Constraint("Tangent", 17, 2, 18, 1))
sketch11.addConstraint(Sketcher.Constraint("Tangent", 18, 2, 19, 1))
sketch11.addConstraint(Sketcher.Constraint("Tangent", 19, 2, 20, 1))
sketch11.addConstraint(Sketcher.Constraint("Tangent", 20, 2, 21, 1))
sketch11.addConstraint(Sketcher.Constraint("Tangent", 21, 2, 16, 1))
sketch11.addConstraint(Sketcher.Constraint("Tangent", 22, 2, 23, 1))
sketch11.addConstraint(Sketcher.Constraint("Tangent", 23, 2, 24, 1))
sketch11.addConstraint(Sketcher.Constraint("Tangent", 24, 2, 25, 1))
sketch11.addConstraint(Sketcher.Constraint("Tangent", 25, 2, 26, 1))
sketch11.addConstraint(Sketcher.Constraint("Tangent", 26, 2, 27, 1))
sketch11.addConstraint(Sketcher.Constraint("Tangent", 27, 2, 22, 1))
sketch11.addConstraint(Sketcher.Constraint("Tangent", 28, 2, 29, 1))
sketch11.addConstraint(Sketcher.Constraint("Tangent", 29, 2, 30, 1))
sketch11.addConstraint(Sketcher.Constraint("Tangent", 30, 2, 31, 1))
sketch11.addConstraint(Sketcher.Constraint("Tangent", 31, 2, 32, 1))
sketch11.addConstraint(Sketcher.Constraint("Tangent", 32, 2, 33, 1))
sketch11.addConstraint(Sketcher.Constraint("Tangent", 33, 2, 28, 1))
sketch11.addConstraint(Sketcher.Constraint("Tangent", 34, 2, 35, 1))
sketch11.addConstraint(Sketcher.Constraint("Tangent", 35, 2, 36, 1))
sketch11.addConstraint(Sketcher.Constraint("Tangent", 36, 2, 37, 1))
sketch11.addConstraint(Sketcher.Constraint("Tangent", 37, 2, 38, 1))
sketch11.addConstraint(Sketcher.Constraint("Tangent", 38, 2, 39, 1))
sketch11.addConstraint(Sketcher.Constraint("Tangent", 39, 2, 34, 1))
sketch11.addConstraint(Sketcher.Constraint("Vertical", 0))
sketch11.addConstraint(Sketcher.Constraint("Vertical", 3))
sketch11.addConstraint(Sketcher.Constraint("Vertical", 6))
sketch11.addConstraint(Sketcher.Constraint("Vertical", 9))
sketch11.addConstraint(Sketcher.Constraint("Horizontal", 12))
sketch11.addConstraint(Sketcher.Constraint("Vertical", 13))
sketch11.addConstraint(Sketcher.Constraint("Horizontal", 14))
sketch11.addConstraint(Sketcher.Constraint("Vertical", 15))
sketch11.addConstraint(Sketcher.Constraint("Vertical", 16))
sketch11.addConstraint(Sketcher.Constraint("Vertical", 19))
sketch11.addConstraint(Sketcher.Constraint("Vertical", 22))
sketch11.addConstraint(Sketcher.Constraint("Vertical", 25))
sketch11.addConstraint(Sketcher.Constraint("Horizontal", 28))
sketch11.addConstraint(Sketcher.Constraint("Horizontal", 31))
sketch11.addConstraint(Sketcher.Constraint("Horizontal", 34))
sketch11.addConstraint(Sketcher.Constraint("Horizontal", 37))
sketch11.addConstraint(Sketcher.Constraint("Equal", 1, 2))
sketch11.addConstraint(Sketcher.Constraint("Equal", 2, 4))
sketch11.addConstraint(Sketcher.Constraint("Equal", 5, 7))
sketch11.addConstraint(Sketcher.Constraint("Equal", 7, 8))
sketch11.addConstraint(Sketcher.Constraint("Equal", 8, 10))
sketch11.addConstraint(Sketcher.Constraint("Equal", 17, 18))
sketch11.addConstraint(Sketcher.Constraint("Equal", 18, 20))
sketch11.addConstraint(Sketcher.Constraint("Equal", 21, 23))
sketch11.addConstraint(Sketcher.Constraint("Equal", 23, 24))
sketch11.addConstraint(Sketcher.Constraint("Equal", 24, 26))
sketch11.addConstraint(Sketcher.Constraint("Equal", 27, 29))
sketch11.addConstraint(Sketcher.Constraint("Equal", 29, 30))
sketch11.addConstraint(Sketcher.Constraint("Equal", 30, 32))
sketch11.addConstraint(Sketcher.Constraint("Equal", 33, 35))
sketch11.addConstraint(Sketcher.Constraint("Equal", 35, 36))
sketch11.addConstraint(Sketcher.Constraint("Equal", 36, 38))
sketch11.addConstraint(Sketcher.Constraint("Symmetric", 20, 3, 23, 3, -1, 1))
sketch11.addConstraint(Sketcher.Constraint("Symmetric", 32, 3, 35, 3, -1, 1))
sketch11.addConstraint(Sketcher.Constraint("Symmetric", 12, 2, 14, 2, -1, 1))
sketch11.addConstraint(Sketcher.Constraint("Symmetric", 17, 2, 26, 2, -1, 1))
sketch11.addConstraint(Sketcher.Constraint("Symmetric", 29, 2, 38, 2, -1, 1))
sketch11.addConstraint(Sketcher.Constraint("Symmetric", 1, 3, 7, 3, -2))
sketch11.addConstraint(Sketcher.Constraint("Symmetric", 4, 2, 10, 2, -2))
sketch11.addConstraint(Sketcher.Constraint("Symmetric", 17, 2, 23, 2, -2))
sketch11.addConstraint(Sketcher.Constraint("Symmetric", 29, 2, 32, 2, -2))
sketch11.addConstraint(Sketcher.Constraint("Horizontal", 32, 3, 29, 2))
sketch11.addConstraint(Sketcher.Constraint("Horizontal", 38, 3, 35, 2))
sketch11.addConstraint(Sketcher.Constraint("Vertical", 5, 3, 1, 2))
sketch11.addConstraint(Sketcher.Constraint("Vertical", 1, 2, 4, 2))
sketch11.addConstraint(Sketcher.Constraint("Vertical", 11, 3, 7, 2))
sketch11.addConstraint(Sketcher.Constraint("Vertical", 20, 3, 17, 2))
sketch11.addConstraint(Sketcher.Constraint("Vertical", 21, 3, 20, 2))
sketch11.addConstraint(Sketcher.Constraint("Equal", 37, 16))
sketch11.addConstraint(Sketcher.Constraint("Radius", 1, Q("1.5 mm")))
sketch11.addConstraint(Sketcher.Constraint("Radius", 17, Q("4.5 mm")))
sketch11.addConstraint(Sketcher.Constraint("DistanceX", 12, 2, 12, 1, Q("52.4 mm")))
sketch11.addConstraint(Sketcher.Constraint("DistanceY", -1, 1, 1, 3, Q("101 mm")))
sketch11.addConstraint(Sketcher.Constraint("DistanceY", -1, 1, 4, 3, Q("69 mm")))
sketch11.addConstraint(Sketcher.Constraint("DistanceY", -1, 1, 12, 2, Q("19.5 mm")))
sketch11.addConstraint(Sketcher.Constraint("DistanceX", 28, 2, 28, 1, Q("20.9996 mm")))
sketch11.addConstraint(Sketcher.Constraint("DistanceX", -1, 1, 1, 3, Q("56.206 mm")))
sketch11.addConstraint(Sketcher.Constraint("DistanceX", -1, 1, 17, 3, Q("55.0002 mm")))
sketch11.addConstraint(Sketcher.Constraint("DistanceY", -1, 1, 29, 3, Q("30.0002 mm")))
pocket1 = body.newObject("PartDesign::Pocket", "Pocket")
pocket1.Profile = sketch11
pocket1.Length = 10

doc.recompute()
